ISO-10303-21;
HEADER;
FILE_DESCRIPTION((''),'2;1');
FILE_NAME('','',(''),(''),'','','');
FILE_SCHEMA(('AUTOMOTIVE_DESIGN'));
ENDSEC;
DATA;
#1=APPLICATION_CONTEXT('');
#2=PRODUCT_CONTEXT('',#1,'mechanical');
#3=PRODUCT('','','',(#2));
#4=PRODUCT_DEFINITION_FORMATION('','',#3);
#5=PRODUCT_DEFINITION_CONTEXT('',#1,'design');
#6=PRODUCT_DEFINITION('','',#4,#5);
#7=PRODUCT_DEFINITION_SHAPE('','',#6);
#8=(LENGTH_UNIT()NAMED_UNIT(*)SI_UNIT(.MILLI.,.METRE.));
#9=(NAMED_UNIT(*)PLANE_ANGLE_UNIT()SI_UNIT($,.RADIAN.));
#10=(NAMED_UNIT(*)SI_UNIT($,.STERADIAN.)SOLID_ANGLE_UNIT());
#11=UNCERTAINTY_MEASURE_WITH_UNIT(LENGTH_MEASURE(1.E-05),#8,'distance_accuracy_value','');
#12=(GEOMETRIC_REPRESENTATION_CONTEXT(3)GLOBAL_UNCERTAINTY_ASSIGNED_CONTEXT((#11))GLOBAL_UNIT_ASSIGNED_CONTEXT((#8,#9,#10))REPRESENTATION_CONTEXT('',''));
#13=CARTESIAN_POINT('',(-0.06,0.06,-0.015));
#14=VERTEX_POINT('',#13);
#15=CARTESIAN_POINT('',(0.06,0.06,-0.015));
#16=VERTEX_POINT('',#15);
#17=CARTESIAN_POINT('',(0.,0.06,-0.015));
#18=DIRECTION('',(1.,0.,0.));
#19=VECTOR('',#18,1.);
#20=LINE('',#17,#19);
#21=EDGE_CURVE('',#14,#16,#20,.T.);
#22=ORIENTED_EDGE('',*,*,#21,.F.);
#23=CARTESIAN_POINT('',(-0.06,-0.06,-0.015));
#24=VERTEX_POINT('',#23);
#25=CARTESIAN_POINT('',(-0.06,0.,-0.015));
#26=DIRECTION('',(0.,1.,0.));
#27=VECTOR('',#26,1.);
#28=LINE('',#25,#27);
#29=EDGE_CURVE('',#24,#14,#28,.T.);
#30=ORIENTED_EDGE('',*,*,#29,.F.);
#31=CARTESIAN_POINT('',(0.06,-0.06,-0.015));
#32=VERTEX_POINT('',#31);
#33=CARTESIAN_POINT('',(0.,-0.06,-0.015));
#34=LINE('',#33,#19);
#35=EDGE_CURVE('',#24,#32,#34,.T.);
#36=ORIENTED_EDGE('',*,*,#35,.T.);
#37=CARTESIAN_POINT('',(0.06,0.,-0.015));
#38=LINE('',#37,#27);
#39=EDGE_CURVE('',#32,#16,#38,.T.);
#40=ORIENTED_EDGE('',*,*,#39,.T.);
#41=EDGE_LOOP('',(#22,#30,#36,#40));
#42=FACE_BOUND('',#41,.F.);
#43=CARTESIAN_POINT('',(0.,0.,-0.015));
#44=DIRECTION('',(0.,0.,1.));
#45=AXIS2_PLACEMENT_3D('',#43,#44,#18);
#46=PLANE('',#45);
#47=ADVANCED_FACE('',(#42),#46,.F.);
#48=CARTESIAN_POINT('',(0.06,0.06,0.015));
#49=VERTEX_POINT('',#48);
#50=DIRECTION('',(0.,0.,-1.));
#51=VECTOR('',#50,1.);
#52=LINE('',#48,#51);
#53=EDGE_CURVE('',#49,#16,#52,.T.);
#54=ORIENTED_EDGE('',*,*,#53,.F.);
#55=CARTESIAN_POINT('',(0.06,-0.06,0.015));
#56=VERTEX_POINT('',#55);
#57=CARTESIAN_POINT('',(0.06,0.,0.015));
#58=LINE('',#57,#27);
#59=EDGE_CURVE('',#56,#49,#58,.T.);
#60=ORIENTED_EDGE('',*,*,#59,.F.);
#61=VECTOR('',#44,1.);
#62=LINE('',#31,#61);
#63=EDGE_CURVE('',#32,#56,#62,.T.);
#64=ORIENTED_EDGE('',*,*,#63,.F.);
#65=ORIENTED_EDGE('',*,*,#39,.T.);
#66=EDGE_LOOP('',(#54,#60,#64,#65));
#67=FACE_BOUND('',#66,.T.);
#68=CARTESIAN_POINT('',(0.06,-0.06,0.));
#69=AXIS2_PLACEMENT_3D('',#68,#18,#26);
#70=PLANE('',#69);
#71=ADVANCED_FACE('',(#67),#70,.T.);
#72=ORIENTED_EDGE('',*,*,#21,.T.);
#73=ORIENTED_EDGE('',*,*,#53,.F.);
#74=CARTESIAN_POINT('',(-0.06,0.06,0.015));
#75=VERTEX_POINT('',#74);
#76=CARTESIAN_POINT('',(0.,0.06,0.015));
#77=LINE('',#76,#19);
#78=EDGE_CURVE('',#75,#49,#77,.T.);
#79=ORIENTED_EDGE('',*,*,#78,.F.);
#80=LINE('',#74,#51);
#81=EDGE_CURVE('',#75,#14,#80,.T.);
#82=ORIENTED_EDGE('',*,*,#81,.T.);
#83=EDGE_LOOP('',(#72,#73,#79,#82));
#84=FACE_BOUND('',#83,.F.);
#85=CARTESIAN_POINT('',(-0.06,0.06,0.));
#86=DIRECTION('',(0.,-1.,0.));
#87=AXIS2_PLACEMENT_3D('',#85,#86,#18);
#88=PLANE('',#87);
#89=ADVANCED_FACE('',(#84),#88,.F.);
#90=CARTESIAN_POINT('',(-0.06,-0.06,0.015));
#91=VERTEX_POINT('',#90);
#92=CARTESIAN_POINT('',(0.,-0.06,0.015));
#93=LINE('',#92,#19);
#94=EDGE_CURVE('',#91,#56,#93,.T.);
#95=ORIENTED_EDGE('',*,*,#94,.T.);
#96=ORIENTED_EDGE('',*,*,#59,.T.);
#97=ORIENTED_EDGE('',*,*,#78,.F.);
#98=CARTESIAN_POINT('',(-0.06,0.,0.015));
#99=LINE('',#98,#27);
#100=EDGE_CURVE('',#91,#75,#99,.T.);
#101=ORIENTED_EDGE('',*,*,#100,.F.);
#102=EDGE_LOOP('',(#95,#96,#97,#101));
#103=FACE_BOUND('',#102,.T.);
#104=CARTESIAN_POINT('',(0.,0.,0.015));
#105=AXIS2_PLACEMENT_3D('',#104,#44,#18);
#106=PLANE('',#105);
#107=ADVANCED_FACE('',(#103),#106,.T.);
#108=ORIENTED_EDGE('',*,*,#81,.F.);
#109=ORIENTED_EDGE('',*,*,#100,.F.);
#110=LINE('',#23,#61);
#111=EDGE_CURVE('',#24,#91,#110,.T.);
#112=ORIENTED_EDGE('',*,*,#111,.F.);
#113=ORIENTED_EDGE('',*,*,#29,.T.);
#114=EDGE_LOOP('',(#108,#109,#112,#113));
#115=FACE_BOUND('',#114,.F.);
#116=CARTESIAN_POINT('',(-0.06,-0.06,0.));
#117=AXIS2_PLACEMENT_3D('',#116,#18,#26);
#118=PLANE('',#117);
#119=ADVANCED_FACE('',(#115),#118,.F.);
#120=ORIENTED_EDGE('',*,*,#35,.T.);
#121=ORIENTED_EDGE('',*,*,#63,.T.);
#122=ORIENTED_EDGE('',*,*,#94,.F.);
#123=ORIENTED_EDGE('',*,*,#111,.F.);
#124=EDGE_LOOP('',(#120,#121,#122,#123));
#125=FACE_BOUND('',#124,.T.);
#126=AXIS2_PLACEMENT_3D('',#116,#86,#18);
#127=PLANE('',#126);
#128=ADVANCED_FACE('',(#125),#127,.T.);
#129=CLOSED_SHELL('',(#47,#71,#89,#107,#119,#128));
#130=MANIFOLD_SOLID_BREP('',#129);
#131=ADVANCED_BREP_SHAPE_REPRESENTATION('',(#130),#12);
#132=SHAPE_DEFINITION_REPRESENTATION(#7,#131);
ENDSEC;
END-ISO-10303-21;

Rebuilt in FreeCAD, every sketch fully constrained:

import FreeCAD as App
import Part
import Sketcher

V = App.Vector

doc = App.newDocument("Part")
params = doc.addObject("Spreadsheet::Sheet", "Params")
for row, (alias, value) in enumerate([
    ("sketch1_width", "0.12 mm"),
    ("pad1_length", "0.03 mm"),
], start=1):
    params.set(f"A{row}", alias)
    params.set(f"B{row}", "=" + value)
    params.setAlias(f"B{row}", alias)

body = doc.addObject("PartDesign::Body", "Body")

# Sketch on XY plane
sketch1 = body.newObject("Sketcher::SketchObject", "Sketch")
sketch1.AttachmentSupport = (doc.getObject("XY_Plane"), [""])
sketch1.MapMode = "FlatFace"
sketch1.addGeometry([
    Part.LineSegment(V(-0.06, 0.06, 0), V(-0.06, -0.06, 0)),
    Part.LineSegment(V(-0.06, -0.06, 0), V(0.06, -0.06, 0)),
    Part.LineSegment(V(0.06, -0.06, 0), V(0.06, 0.06, 0)),
    Part.LineSegment(V(0.06, 0.06, 0), V(-0.06, 0.06, 0)),
], False)
sketch1.addConstraint([
    Sketcher.Constraint("Coincident", 0, 2, 1, 1),
    Sketcher.Constraint("Coincident", 1, 2, 2, 1),
    Sketcher.Constraint("Coincident", 2, 2, 3, 1),
    Sketcher.Constraint("Coincident", 3, 2, 0, 1),
    Sketcher.Constraint("Vertical", 0),
    Sketcher.Constraint("Horizontal", 1),
    Sketcher.Constraint("Vertical", 2),
    Sketcher.Constraint("Horizontal", 3),
    Sketcher.Constraint("Symmetric", 0, 2, 2, 2, -1, 1),
    Sketcher.Constraint("Equal", 3, 0),
    Sketcher.Constraint("DistanceX", 1, 1, 1, 2, 0.12),
])
sketch1.setExpression("Constraints[10]", "Params.sketch1_width")
pad1 = body.newObject("PartDesign::Pad", "Pad")
pad1.Profile = sketch1
pad1.setExpression("Length", "Params.pad1_length")
pad1.Midplane = True

doc.recompute()
